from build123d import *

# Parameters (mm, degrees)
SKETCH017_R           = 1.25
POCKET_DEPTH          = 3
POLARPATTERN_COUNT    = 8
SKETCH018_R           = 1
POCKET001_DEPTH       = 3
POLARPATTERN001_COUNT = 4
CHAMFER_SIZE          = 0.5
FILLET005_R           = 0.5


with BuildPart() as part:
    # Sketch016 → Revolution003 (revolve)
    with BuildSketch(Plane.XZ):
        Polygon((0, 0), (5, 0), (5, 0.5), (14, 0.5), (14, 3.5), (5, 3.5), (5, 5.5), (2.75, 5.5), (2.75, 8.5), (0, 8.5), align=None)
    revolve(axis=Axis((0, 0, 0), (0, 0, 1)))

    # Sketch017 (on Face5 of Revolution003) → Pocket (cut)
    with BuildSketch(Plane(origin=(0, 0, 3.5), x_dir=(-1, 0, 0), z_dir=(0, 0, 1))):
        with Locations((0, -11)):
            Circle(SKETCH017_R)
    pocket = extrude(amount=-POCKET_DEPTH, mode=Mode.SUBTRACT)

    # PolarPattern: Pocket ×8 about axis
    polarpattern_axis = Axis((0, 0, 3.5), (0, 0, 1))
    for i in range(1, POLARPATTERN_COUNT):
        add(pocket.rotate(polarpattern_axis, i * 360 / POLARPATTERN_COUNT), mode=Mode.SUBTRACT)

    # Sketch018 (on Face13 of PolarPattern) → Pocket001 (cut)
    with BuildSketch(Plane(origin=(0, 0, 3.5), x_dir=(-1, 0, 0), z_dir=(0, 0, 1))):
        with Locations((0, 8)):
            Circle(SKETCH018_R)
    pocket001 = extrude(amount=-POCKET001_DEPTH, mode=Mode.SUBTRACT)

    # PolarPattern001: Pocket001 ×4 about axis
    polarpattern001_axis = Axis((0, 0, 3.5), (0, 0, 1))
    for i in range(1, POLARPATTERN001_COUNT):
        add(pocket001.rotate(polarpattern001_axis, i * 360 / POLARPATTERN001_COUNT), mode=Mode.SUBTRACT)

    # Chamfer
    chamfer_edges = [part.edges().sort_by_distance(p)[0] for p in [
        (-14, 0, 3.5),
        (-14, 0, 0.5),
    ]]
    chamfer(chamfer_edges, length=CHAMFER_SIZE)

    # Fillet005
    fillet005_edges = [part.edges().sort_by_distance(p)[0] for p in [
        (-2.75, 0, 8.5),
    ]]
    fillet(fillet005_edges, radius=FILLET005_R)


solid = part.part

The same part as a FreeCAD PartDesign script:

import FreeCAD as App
import Part
import Sketcher

V = App.Vector


def edges_at(feature, points):
    """Names of the edges that pass closest to the given points."""
    edges = feature.Shape.Edges
    near = lambda p: min(range(len(edges)), key=lambda i: edges[i].distToShape(Part.Vertex(*p))[0])
    return sorted({f"Edge{near(p) + 1}" for p in points})

doc = App.newDocument("Part")
body = doc.addObject("PartDesign::Body", "Body")

sketch1 = doc.addObject("Sketcher::SketchObject", "Sketch")
body.addObject(sketch1)
sketch1.AttachmentSupport = (doc.XZ_Plane, [""])
sketch1.MapMode = "FlatFace"
sketch1.addGeometry([
    Part.LineSegment(V(0, 0, 0), V(5, 0, 0)),
    Part.LineSegment(V(5, 0, 0), V(5, 0.5, 0)),
    Part.LineSegment(V(5, 0.5, 0), V(14, 0.5, 0)),
    Part.LineSegment(V(14, 0.5, 0), V(14, 3.5, 0)),
    Part.LineSegment(V(14, 3.5, 0), V(5, 3.5, 0)),
    Part.LineSegment(V(5, 3.5, 0), V(5, 5.5, 0)),
    Part.LineSegment(V(5, 5.5, 0), V(2.75, 5.5, 0)),
    Part.LineSegment(V(2.75, 5.5, 0), V(2.75, 8.5, 0)),
    Part.LineSegment(V(2.75, 8.5, 0), V(0, 8.5, 0)),
    Part.LineSegment(V(0, 8.5, 0), V(0, 0, 0)),
], False)
sketch1.addConstraint([
    Sketcher.Constraint("Coincident", 0, 2, 1, 1),
    Sketcher.Constraint("Coincident", 1, 2, 2, 1),
    Sketcher.Constraint("Coincident", 2, 2, 3, 1),
    Sketcher.Constraint("Coincident", 3, 2, 4, 1),
    Sketcher.Constraint("Coincident", 4, 2, 5, 1),
    Sketcher.Constraint("Coincident", 5, 2, 6, 1),
    Sketcher.Constraint("Coincident", 6, 2, 7, 1),
    Sketcher.Constraint("Coincident", 7, 2, 8, 1),
    Sketcher.Constraint("Coincident", 8, 2, 9, 1),
    Sketcher.Constraint("Coincident", 9, 2, 0, 1),
    Sketcher.Constraint("Horizontal", 0),
    Sketcher.Constraint("Vertical", 1),
    Sketcher.Constraint("Horizontal", 2),
    Sketcher.Constraint("Vertical", 3),
    Sketcher.Constraint("Horizontal", 4),
    Sketcher.Constraint("Vertical", 5),
    Sketcher.Constraint("Horizontal", 6),
    Sketcher.Constraint("Vertical", 7),
    Sketcher.Constraint("Horizontal", 8),
    Sketcher.Constraint("Vertical", 9),
    Sketcher.Constraint("Coincident", 9, 2, -1, 1),
    Sketcher.Constraint("Vertical", 1, 2, 4, 2),
    Sketcher.Constraint("Equal", 3, 7),
    Sketcher.Constraint("DistanceX", 0, 1, 0, 2, 5.0),
    Sketcher.Constraint("DistanceX", 2, 1, 2, 2, 9.0),
    Sketcher.Constraint("DistanceY", 3, 1, 3, 2, 3.0),
    Sketcher.Constraint("DistanceY", 5, 1, 5, 2, 2.0),
    Sketcher.Constraint("DistanceY", 1, 1, 1, 2, 0.5),
    Sketcher.Constraint("DistanceX", 6, 2, 6, 1, 2.25),
])
revolution = doc.addObject("PartDesign::Revolution", "Revolution")
body.addObject(revolution)
revolution.Profile = sketch1
revolution.ReferenceAxis = (sketch1, ["V_Axis"])
revolution.Angle = 360

sketch2 = doc.addObject("Sketcher::SketchObject", "Sketch001")
body.addObject(sketch2)
sketch2.AttachmentSupport = (doc.XY_Plane, [""])
sketch2.MapMode = "FlatFace"
sketch2.AttachmentOffset = App.Placement(V(0, 0, 3.5), App.Rotation())
sketch2.addGeometry(Part.Circle(V(0, 11, 0), V(0, 0, 1), 1.25), False)
sketch2.addConstraint([
    Sketcher.Constraint("PointOnObject", 0, 3, -2),
    Sketcher.Constraint("Diameter", 0, 2.5),
    Sketcher.Constraint("DistanceY", -1, 1, 0, 3, 11.0),
])
pocket1 = doc.addObject("PartDesign::Pocket", "Pocket")
body.addObject(pocket1)
pocket1.Profile = sketch2
pocket1.Length = 3
doc.recompute()

polarpattern = doc.addObject("PartDesign::PolarPattern", "PolarPattern")
body.addObject(polarpattern)
polarpattern.Originals = [pocket1]
polarpattern.Axis = (doc.Z_Axis, [""])
polarpattern.Angle = 360
polarpattern.Occurrences = 8
body.Tip = polarpattern

sketch3 = doc.addObject("Sketcher::SketchObject", "Sketch002")
body.addObject(sketch3)
sketch3.AttachmentSupport = (doc.XY_Plane, [""])
sketch3.MapMode = "FlatFace"
sketch3.AttachmentOffset = App.Placement(V(0, 0, 3.5), App.Rotation())
sketch3.addGeometry(Part.Circle(V(0, -8, 0), V(0, 0, 1), 1), False)
sketch3.addConstraint([
    Sketcher.Constraint("PointOnObject", 0, 3, -2),
    Sketcher.Constraint("Diameter", 0, 2.0),
    Sketcher.Constraint("DistanceY", 0, 3, -1, 1, 8.0),
])
pocket2 = doc.addObject("PartDesign::Pocket", "Pocket001")
body.addObject(pocket2)
pocket2.Profile = sketch3
pocket2.Length = 3
doc.recompute()

polarpattern2 = doc.addObject("PartDesign::PolarPattern", "PolarPattern001")
body.addObject(polarpattern2)
polarpattern2.Originals = [pocket2]
polarpattern2.Axis = (doc.Z_Axis, [""])
polarpattern2.Angle = 360
polarpattern2.Occurrences = 4
body.Tip = polarpattern2
doc.recompute()

chamfer = doc.addObject("PartDesign::Chamfer", "Chamfer")
body.addObject(chamfer)
chamfer.Base = (polarpattern2, edges_at(polarpattern2, [(-14, 0, 3.5), (-14, 0, 0.5)]))
chamfer.Size = 0.5
doc.recompute()

fillet = doc.addObject("PartDesign::Fillet", "Fillet")
body.addObject(fillet)
fillet.Base = (chamfer, edges_at(chamfer, [(-2.75, 0, 8.5)]))
fillet.Radius = 0.5

doc.recompute()
